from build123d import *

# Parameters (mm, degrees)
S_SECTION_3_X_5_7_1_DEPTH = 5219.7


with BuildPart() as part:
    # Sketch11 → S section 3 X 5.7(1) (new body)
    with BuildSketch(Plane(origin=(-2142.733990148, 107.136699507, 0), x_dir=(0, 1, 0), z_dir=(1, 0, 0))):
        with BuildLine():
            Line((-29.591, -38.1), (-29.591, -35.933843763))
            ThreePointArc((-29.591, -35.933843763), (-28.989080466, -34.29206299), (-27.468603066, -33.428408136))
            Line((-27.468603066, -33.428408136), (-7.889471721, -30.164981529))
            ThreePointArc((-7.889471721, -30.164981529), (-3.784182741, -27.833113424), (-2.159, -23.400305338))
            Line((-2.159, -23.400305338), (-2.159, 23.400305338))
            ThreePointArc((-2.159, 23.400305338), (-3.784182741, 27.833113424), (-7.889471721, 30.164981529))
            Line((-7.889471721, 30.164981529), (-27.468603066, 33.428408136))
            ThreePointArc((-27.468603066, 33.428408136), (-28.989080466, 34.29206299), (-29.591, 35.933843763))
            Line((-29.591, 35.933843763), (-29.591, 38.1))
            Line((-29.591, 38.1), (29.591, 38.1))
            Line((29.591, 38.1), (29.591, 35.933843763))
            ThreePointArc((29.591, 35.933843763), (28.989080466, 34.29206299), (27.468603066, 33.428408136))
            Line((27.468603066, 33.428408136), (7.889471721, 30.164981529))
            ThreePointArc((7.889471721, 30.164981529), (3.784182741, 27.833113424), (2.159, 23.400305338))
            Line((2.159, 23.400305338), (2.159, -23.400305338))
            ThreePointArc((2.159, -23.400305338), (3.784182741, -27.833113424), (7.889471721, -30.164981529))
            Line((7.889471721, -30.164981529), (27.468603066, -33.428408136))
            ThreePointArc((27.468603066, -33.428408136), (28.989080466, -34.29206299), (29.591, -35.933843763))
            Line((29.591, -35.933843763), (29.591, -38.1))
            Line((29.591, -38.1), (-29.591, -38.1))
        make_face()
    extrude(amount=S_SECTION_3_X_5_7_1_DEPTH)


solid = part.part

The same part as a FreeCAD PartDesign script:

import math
import FreeCAD as App
import Part
import Sketcher
Q = App.Units.Quantity

doc = App.newDocument("Part")
body = doc.addObject("PartDesign::Body", "Body")

# Sketch on YZ plane
sketch1 = doc.addObject("Sketcher::SketchObject", "Sketch")
body.addObject(sketch1)
sketch1.AttachmentSupport = (doc.YZ_Plane, [""])
sketch1.MapMode = "FlatFace"
sketch1.AttachmentOffset = App.Placement(App.Vector(0, 0, -2142.73399), App.Rotation())
sketch1.addGeometry([
    Part.LineSegment(App.Vector(77.5, -35.9, 0), App.Vector(77.5, -38.1, 0)),  # 0
    Part.LineSegment(App.Vector(77.5, -38.1, 0), App.Vector(136.7, -38.1, 0)),  # 1
    Part.LineSegment(App.Vector(136.7, -38.1, 0), App.Vector(136.7, -35.9, 0)),  # 2
    Part.ArcOfCircle(Part.Circle(App.Vector(134.2, -35.9, 0), App.Vector(0, 0, 1), 2.5), math.radians(0), math.radians(81)),  # 3
    Part.LineSegment(App.Vector(134.6, -33.4, 0), App.Vector(115, -30.2, 0)),  # 4
    Part.ArcOfCircle(Part.Circle(App.Vector(116.2, -23.4, 0), App.Vector(0, 0, 1), 6.9), math.radians(-180), math.radians(-99)),  # 5
    Part.LineSegment(App.Vector(109.3, -23.4, 0), App.Vector(109.3, 23.4, 0)),  # 6
    Part.ArcOfCircle(Part.Circle(App.Vector(116.2, 23.4, 0), App.Vector(0, 0, 1), 6.9), math.radians(99), math.radians(180)),  # 7
    Part.LineSegment(App.Vector(115, 30.2, 0), App.Vector(134.6, 33.4, 0)),  # 8
    Part.ArcOfCircle(Part.Circle(App.Vector(134.2, 35.9, 0), App.Vector(0, 0, 1), 2.5), math.radians(-81), math.radians(0)),  # 9
    Part.LineSegment(App.Vector(136.7, 35.9, 0), App.Vector(136.7, 38.1, 0)),  # 10
    Part.LineSegment(App.Vector(136.7, 38.1, 0), App.Vector(77.5, 38.1, 0)),  # 11
    Part.LineSegment(App.Vector(77.5, 38.1, 0), App.Vector(77.5, 35.9, 0)),  # 12
    Part.ArcOfCircle(Part.Circle(App.Vector(80.1, 35.9, 0), App.Vector(0, 0, 1), 2.5), math.radians(-180), math.radians(-99)),  # 13
    Part.LineSegment(App.Vector(79.7, 33.4, 0), App.Vector(99.2, 30.2, 0)),  # 14
    Part.ArcOfCircle(Part.Circle(App.Vector(98.1, 23.4, 0), App.Vector(0, 0, 1), 6.9), math.radians(0), math.radians(81)),  # 15
    Part.LineSegment(App.Vector(105, 23.4, 0), App.Vector(105, -23.4, 0)),  # 16
    Part.ArcOfCircle(Part.Circle(App.Vector(98.1, -23.4, 0), App.Vector(0, 0, 1), 6.9), math.radians(-81), math.radians(0)),  # 17
    Part.LineSegment(App.Vector(99.2, -30.2, 0), App.Vector(79.7, -33.4, 0)),  # 18
    Part.ArcOfCircle(Part.Circle(App.Vector(80.1, -35.9, 0), App.Vector(0, 0, 1), 2.5), math.radians(99), math.radians(180)),  # 19
], False)
sketch1.addConstraint([
    Sketcher.Constraint("Coincident", 0, 2, 1, 1),
    Sketcher.Constraint("Coincident", 1, 2, 2, 1),
    Sketcher.Constraint("Tangent", 2, 2, 3, 1),
    Sketcher.Constraint("Tangent", 3, 2, 4, 1),
    Sketcher.Constraint("Tangent", 4, 2, 5, 2),
    Sketcher.Constraint("Tangent", 5, 1, 6, 1),
    Sketcher.Constraint("Tangent", 6, 2, 7, 2),
    Sketcher.Constraint("Tangent", 7, 1, 8, 1),
    Sketcher.Constraint("Tangent", 8, 2, 9, 1),
    Sketcher.Constraint("Tangent", 9, 2, 10, 1),
    Sketcher.Constraint("Coincident", 10, 2, 11, 1),
    Sketcher.Constraint("Coincident", 11, 2, 12, 1),
    Sketcher.Constraint("Tangent", 12, 2, 13, 1),
    Sketcher.Constraint("Tangent", 13, 2, 14, 1),
    Sketcher.Constraint("Tangent", 14, 2, 15, 2),
    Sketcher.Constraint("Tangent", 15, 1, 16, 1),
    Sketcher.Constraint("Tangent", 16, 2, 17, 2),
    Sketcher.Constraint("Tangent", 17, 1, 18, 1),
    Sketcher.Constraint("Tangent", 18, 2, 19, 1),
    Sketcher.Constraint("Tangent", 19, 2, 0, 1),
    Sketcher.Constraint("Vertical", 0),
    Sketcher.Constraint("Horizontal", 1),
    Sketcher.Constraint("Vertical", 2),
    Sketcher.Constraint("Vertical", 6),
    Sketcher.Constraint("Vertical", 10),
    Sketcher.Constraint("Horizontal", 11),
    Sketcher.Constraint("Vertical", 12),
    Sketcher.Constraint("Vertical", 16),
    Sketcher.Constraint("Equal", 5, 7),
    Sketcher.Constraint("Equal", 3, 9),
    Sketcher.Constraint("Equal", 9, 13),
    Sketcher.Constraint("Equal", 7, 15),
    Sketcher.Constraint("Equal", 15, 17),
    Sketcher.Constraint("Equal", 13, 19),
    Sketcher.Constraint("Symmetric", 3, 3, 9, 3, -1),
    Sketcher.Constraint("Symmetric", 13, 3, 19, 3, -1),
    Sketcher.Constraint("Parallel", 4, 14),
    Sketcher.Constraint("Parallel", 8, 18),
    Sketcher.Constraint("Horizontal", 9, 3, 13, 3),
    Sketcher.Constraint("Horizontal", 7, 3, 15, 3),
    Sketcher.Constraint("Horizontal", 5, 3, 17, 3),
    Sketcher.Constraint("Equal", 2, 10),
    Sketcher.Constraint("Radius", 3, Q("0.1 in")),
    Sketcher.Constraint("Radius", 5, Q("0.27 in")),
    Sketcher.Constraint("DistanceX", 1, 1, 1, 2, Q("2.33 in")),
    Sketcher.Constraint("DistanceY", 0, 2, -1, 1, Q("1.5 in")),
    Sketcher.Constraint("DistanceX", 5, 3, 3, 3, Q("0.71 in")),
    Sketcher.Constraint("DistanceY", 6, 1, 6, 2, 46.800611),
    Sketcher.Constraint("DistanceX", -1, 1, 3, 3, 134.1877),
    Sketcher.Constraint("Distance", 4, 19.84924),
])
pad1 = doc.addObject("PartDesign::Pad", "Pad")
body.addObject(pad1)
pad1.Profile = sketch1
pad1.Length = Q("205.5 in")

doc.recompute()
